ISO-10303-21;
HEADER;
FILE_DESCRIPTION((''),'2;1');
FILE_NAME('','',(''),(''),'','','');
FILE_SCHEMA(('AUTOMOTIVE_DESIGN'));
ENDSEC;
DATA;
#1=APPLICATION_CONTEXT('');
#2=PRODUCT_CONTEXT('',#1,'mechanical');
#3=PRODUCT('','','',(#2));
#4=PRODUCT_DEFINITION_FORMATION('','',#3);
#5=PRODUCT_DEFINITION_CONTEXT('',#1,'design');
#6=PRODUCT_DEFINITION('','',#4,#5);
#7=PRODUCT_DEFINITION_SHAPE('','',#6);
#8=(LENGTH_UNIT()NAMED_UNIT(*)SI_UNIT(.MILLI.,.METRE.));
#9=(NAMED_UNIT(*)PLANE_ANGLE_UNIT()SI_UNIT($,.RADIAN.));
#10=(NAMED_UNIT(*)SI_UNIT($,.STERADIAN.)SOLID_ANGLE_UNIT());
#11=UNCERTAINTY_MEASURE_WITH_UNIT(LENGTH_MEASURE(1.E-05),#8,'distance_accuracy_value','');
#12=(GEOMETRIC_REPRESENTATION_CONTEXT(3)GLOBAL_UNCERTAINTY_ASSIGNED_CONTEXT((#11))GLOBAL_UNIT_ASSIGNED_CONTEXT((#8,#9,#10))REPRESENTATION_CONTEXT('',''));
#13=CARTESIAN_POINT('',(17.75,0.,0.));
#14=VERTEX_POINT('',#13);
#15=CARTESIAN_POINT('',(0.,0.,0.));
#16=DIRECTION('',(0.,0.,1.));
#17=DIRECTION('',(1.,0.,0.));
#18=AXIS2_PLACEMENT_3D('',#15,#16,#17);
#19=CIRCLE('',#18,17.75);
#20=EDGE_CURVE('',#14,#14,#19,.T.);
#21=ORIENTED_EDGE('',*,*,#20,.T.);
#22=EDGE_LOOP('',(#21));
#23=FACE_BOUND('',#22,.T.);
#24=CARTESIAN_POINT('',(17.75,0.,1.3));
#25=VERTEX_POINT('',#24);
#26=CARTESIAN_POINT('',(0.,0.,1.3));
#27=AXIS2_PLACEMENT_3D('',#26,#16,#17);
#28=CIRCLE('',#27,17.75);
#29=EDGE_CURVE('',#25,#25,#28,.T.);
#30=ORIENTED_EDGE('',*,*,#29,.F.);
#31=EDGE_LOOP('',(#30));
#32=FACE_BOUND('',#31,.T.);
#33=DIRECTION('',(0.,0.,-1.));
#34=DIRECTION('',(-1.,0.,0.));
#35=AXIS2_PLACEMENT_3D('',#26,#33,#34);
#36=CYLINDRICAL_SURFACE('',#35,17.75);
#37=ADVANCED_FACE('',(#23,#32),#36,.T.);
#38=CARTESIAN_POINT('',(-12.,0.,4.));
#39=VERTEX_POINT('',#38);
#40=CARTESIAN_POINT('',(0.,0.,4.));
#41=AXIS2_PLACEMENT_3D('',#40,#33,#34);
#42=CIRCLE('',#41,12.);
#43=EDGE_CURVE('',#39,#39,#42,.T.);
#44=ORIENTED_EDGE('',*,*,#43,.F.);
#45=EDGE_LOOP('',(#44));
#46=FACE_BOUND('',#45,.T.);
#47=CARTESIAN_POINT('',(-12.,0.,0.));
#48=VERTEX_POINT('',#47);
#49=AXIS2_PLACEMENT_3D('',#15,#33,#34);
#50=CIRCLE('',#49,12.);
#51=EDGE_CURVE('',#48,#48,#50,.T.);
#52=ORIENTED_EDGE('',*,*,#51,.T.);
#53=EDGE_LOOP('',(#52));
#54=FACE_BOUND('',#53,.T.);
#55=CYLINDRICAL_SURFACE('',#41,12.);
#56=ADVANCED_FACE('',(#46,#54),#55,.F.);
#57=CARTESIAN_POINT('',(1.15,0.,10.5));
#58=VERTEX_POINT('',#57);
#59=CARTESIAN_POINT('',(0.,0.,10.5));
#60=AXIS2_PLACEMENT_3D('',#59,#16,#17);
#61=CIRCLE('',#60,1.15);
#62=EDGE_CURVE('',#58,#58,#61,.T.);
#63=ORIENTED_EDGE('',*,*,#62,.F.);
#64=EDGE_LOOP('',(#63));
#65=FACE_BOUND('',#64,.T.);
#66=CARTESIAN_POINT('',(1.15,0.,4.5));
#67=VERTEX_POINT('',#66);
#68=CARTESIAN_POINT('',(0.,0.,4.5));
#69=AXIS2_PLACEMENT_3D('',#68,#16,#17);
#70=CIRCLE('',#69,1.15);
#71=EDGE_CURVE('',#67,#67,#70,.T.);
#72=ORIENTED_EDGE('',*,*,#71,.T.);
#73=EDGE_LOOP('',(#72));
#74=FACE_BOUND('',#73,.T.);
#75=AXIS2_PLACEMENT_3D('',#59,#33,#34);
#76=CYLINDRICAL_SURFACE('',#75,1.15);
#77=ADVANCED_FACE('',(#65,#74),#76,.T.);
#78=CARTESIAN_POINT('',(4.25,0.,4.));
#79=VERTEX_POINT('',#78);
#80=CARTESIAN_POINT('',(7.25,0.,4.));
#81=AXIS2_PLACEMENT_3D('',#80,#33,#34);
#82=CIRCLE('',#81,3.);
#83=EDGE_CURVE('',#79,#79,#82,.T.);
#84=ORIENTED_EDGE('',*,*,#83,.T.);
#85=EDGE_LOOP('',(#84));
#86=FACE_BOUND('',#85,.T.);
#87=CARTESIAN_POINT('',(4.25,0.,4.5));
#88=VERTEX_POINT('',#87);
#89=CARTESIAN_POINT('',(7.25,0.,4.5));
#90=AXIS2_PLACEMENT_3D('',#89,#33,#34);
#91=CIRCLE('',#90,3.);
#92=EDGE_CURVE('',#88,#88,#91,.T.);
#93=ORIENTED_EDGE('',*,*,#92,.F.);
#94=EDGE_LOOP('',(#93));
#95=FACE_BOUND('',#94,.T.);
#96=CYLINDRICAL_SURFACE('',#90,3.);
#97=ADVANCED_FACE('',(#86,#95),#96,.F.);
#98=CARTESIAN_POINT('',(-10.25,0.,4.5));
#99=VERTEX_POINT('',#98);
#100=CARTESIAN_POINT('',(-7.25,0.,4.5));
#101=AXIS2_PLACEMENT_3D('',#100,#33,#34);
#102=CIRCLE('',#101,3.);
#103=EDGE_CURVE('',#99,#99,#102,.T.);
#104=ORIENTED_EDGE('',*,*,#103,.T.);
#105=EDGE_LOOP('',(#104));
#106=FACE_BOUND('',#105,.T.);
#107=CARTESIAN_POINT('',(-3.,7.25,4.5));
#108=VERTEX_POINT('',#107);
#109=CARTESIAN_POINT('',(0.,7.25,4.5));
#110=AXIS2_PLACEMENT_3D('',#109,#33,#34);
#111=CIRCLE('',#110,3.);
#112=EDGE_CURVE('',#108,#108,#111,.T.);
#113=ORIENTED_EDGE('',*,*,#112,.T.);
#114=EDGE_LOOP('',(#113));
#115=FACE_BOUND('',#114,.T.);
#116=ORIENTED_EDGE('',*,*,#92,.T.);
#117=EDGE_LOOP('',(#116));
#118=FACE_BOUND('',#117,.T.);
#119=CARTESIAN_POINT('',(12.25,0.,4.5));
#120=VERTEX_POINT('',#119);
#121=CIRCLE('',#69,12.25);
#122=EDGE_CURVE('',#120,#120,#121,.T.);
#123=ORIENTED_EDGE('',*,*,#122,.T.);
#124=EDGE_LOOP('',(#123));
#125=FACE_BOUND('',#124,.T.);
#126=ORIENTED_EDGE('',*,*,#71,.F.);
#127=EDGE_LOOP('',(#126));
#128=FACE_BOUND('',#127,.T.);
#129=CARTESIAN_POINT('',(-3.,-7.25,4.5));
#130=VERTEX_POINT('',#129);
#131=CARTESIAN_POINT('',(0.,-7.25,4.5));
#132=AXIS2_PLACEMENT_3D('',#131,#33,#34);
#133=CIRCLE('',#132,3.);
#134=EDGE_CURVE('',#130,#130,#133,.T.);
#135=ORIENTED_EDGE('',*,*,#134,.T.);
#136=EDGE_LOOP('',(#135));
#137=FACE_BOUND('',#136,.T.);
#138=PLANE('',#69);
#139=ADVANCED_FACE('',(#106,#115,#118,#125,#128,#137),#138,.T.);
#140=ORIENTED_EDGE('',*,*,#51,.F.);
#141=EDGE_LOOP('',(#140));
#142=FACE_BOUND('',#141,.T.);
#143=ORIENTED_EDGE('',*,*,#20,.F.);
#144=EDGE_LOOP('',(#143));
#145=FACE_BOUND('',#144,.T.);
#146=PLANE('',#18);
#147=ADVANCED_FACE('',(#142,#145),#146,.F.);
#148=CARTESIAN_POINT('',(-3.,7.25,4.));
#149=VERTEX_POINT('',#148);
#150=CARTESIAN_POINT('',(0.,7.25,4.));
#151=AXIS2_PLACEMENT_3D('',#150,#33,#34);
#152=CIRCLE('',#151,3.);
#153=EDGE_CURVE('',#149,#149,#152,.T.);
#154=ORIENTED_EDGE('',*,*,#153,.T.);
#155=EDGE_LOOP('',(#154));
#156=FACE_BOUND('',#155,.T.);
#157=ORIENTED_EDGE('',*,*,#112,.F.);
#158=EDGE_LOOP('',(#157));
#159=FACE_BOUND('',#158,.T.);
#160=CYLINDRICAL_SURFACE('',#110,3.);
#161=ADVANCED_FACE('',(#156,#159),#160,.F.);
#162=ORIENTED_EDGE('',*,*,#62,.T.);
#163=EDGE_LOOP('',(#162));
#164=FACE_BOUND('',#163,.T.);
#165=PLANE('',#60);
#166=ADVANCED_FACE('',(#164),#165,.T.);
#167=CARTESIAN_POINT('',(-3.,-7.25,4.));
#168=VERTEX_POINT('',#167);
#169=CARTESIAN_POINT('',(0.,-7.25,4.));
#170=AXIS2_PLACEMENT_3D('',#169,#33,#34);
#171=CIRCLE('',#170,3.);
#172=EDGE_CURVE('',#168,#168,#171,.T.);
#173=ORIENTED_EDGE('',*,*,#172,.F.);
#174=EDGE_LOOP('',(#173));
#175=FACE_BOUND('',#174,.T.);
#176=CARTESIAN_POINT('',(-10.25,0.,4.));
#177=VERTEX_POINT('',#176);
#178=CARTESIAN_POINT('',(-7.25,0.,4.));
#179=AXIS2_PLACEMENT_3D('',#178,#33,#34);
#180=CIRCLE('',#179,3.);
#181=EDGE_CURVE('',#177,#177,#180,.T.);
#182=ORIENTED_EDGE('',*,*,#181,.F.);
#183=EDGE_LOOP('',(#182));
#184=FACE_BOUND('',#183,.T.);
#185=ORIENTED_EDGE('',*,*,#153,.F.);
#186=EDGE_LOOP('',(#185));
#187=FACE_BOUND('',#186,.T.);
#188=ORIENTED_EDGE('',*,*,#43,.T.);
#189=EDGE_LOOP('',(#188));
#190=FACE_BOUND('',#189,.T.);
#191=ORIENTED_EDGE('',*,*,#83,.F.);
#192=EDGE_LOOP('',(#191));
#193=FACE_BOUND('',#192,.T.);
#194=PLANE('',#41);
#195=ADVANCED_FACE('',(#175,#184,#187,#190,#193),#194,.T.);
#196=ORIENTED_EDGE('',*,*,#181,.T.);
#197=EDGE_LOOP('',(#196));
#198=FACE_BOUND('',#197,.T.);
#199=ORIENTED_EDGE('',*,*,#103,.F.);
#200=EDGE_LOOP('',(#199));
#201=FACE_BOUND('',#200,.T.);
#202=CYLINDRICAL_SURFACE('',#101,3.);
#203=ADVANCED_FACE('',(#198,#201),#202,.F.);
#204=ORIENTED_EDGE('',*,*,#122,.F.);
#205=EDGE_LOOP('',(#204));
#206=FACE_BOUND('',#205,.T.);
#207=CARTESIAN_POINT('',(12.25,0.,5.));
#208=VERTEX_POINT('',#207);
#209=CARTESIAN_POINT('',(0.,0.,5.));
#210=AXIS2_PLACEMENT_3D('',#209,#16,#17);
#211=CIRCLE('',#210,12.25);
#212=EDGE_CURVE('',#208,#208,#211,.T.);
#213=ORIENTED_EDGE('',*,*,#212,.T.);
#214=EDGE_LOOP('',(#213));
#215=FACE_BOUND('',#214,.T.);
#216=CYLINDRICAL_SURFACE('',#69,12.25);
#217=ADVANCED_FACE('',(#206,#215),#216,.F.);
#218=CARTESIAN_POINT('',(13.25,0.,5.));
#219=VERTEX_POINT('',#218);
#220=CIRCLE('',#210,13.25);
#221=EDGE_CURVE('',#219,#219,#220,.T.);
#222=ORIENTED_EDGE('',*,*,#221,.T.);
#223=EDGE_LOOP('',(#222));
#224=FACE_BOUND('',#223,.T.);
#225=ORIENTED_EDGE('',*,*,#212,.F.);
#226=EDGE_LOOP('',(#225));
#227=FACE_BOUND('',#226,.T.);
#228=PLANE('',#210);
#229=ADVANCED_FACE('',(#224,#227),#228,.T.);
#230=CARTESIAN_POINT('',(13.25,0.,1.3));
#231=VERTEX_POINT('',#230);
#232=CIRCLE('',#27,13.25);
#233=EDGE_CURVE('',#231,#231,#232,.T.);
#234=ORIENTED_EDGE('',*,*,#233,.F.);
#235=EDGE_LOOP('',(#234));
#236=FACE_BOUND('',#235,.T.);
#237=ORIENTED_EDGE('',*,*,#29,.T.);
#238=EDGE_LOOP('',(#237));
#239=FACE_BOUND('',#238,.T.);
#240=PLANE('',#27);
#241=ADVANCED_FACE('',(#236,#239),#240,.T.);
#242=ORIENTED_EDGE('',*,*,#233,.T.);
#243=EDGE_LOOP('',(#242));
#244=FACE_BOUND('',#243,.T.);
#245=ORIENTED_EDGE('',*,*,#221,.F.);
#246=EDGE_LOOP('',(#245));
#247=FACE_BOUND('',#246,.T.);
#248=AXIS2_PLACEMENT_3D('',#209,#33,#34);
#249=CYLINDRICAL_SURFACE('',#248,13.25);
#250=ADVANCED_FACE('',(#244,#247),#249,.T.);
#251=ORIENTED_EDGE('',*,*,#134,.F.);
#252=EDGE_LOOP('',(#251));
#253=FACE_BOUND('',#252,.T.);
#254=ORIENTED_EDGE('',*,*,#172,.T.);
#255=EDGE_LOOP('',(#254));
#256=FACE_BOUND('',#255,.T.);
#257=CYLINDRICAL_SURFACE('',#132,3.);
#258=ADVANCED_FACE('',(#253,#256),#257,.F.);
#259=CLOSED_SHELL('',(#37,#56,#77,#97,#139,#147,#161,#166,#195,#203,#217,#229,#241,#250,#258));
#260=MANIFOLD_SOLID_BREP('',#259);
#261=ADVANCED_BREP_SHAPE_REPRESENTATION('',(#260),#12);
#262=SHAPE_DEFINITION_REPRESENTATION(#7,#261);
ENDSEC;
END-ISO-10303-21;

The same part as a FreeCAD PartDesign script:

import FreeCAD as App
import Part
import Sketcher
from FreeCAD import Vector

doc = App.newDocument("Part")
body = doc.addObject("PartDesign::Body", "Body")

sketch1 = body.newObject("Sketcher::SketchObject", "Sketch")
sketch1.AttachmentSupport = (doc.getObject("XY_Plane"), [""])
sketch1.MapMode = "FlatFace"
sketch1.addGeometry(Part.Circle(Vector(0, 0, 0), Vector(0, 0, 1), 17.75), False)
sketch1.addConstraint([
    Sketcher.Constraint("Coincident", 0, 3, -1, 1),
    Sketcher.Constraint("Diameter", 0, 35.5),
])
pad1 = body.newObject("PartDesign::Pad", "Pad")
pad1.Profile = sketch1
pad1.Length = 1.3

sketch2 = body.newObject("Sketcher::SketchObject", "Sketch001")
sketch2.AttachmentSupport = (doc.getObject("XY_Plane"), [""])
sketch2.MapMode = "FlatFace"
sketch2.AttachmentOffset = App.Placement(Vector(0, 0, 1.3), App.Rotation())
sketch2.addGeometry(Part.Circle(Vector(0, 0, 0), Vector(0, 0, 1), 13.25), False)
sketch2.addConstraint([
    Sketcher.Constraint("Coincident", 0, 3, -1, 1),
    Sketcher.Constraint("Diameter", 0, 26.5),
])
pad2 = body.newObject("PartDesign::Pad", "Pad001")
pad2.Profile = sketch2
pad2.Length = 3.7

sketch3 = body.newObject("Sketcher::SketchObject", "Sketch002")
sketch3.AttachmentSupport = (doc.getObject("XY_Plane"), [""])
sketch3.MapMode = "FlatFace"
sketch3.addGeometry(Part.Circle(Vector(0, 0, 0), Vector(0, 0, 1), 12), False)
sketch3.addConstraint([
    Sketcher.Constraint("Coincident", 0, 3, -1, 1),
    Sketcher.Constraint("Diameter", 0, 24.0),
])
pocket1 = body.newObject("PartDesign::Pocket", "Pocket")
pocket1.Profile = sketch3
pocket1.Length = 4
pocket1.Reversed = True

sketch4 = body.newObject("Sketcher::SketchObject", "Sketch003")
sketch4.AttachmentSupport = (doc.getObject("XY_Plane"), [""])
sketch4.MapMode = "FlatFace"
sketch4.AttachmentOffset = App.Placement(Vector(0, 0, 5), App.Rotation())
sketch4.addGeometry(Part.Circle(Vector(0, 0, 0), Vector(0, 0, 1), 12.25), False)
sketch4.addConstraint([
    Sketcher.Constraint("Coincident", 0, 3, -1, 1),
    Sketcher.Constraint("Diameter", 0, 24.5),
])
pocket2 = body.newObject("PartDesign::Pocket", "Pocket001")
pocket2.Profile = sketch4
pocket2.Length = 0.5

sketch5 = body.newObject("Sketcher::SketchObject", "Sketch004")
sketch5.AttachmentSupport = (doc.getObject("XY_Plane"), [""])
sketch5.MapMode = "FlatFace"
sketch5.AttachmentOffset = App.Placement(Vector(0, 0, 4), App.Rotation())
sketch5.addGeometry([
    Part.Circle(Vector(0, 7.25, 0), Vector(0, 0, 1), 3),
    Part.Circle(Vector(-7.25, 0, 0), Vector(0, 0, 1), 3),
    Part.Circle(Vector(0, -7.25, 0), Vector(0, 0, 1), 3),
    Part.Circle(Vector(7.25, 0, 0), Vector(0, 0, 1), 3),
], False)
sketch5.addConstraint([
    Sketcher.Constraint("Equal", 0, 1),
    Sketcher.Constraint("Equal", 1, 2),
    Sketcher.Constraint("Equal", 2, 3),
    Sketcher.Constraint("Symmetric", 0, 3, 2, 3, -1, 1),
    Sketcher.Constraint("Symmetric", 1, 3, 3, 3, -1, 1),
    Sketcher.Constraint("PointOnObject", 0, 3, -2),
    Sketcher.Constraint("PointOnObject", 1, 3, -1),
    Sketcher.Constraint("Diameter", 0, 6.0),
    Sketcher.Constraint("DistanceY", 2, 3, 0, 3, 14.5),
    Sketcher.Constraint("DistanceX", 1, 3, 3, 3, 14.5),
])
pocket3 = body.newObject("PartDesign::Pocket", "Pocket002")
pocket3.Profile = sketch5
pocket3.Length = 0.5
pocket3.Reversed = True

sketch6 = body.newObject("Sketcher::SketchObject", "Sketch005")
sketch6.AttachmentSupport = (doc.getObject("XY_Plane"), [""])
sketch6.MapMode = "FlatFace"
sketch6.AttachmentOffset = App.Placement(Vector(0, 0, 4.5), App.Rotation())
sketch6.addGeometry(Part.Circle(Vector(0, 0, 0), Vector(0, 0, 1), 1.15), False)
sketch6.addConstraint([
    Sketcher.Constraint("Coincident", 0, 3, -1, 1),
    Sketcher.Constraint("Diameter", 0, 2.3),
])
pad3 = body.newObject("PartDesign::Pad", "Pad002")
pad3.Profile = sketch6
pad3.Length = 6

doc.recompute()
